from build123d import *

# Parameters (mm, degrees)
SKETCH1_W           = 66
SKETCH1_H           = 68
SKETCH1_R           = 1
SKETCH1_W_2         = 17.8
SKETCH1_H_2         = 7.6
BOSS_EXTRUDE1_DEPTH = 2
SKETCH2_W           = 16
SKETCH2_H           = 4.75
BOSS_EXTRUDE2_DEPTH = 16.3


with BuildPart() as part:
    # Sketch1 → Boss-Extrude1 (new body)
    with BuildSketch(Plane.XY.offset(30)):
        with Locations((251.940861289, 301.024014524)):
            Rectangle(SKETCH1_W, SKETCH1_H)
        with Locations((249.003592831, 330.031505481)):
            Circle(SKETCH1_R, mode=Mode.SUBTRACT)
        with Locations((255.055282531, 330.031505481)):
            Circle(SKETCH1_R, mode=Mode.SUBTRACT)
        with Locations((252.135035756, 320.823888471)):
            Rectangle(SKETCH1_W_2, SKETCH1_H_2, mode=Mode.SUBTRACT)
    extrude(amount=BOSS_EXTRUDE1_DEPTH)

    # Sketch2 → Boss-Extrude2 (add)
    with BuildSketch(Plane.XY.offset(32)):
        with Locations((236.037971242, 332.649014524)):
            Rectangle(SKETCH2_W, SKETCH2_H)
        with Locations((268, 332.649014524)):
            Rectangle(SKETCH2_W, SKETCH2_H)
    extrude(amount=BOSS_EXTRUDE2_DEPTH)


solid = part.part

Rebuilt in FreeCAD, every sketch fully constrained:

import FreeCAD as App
import Part
import Sketcher

V = App.Vector
Q = App.Units.Quantity


def add_polygon(sketch, points):
    """Adds a closed chain of lines whose ends are joined by coincident constraints."""
    first, n = sketch.GeometryCount, len(points)
    for a, b in zip(points, points[1:] + points[:1]):
        sketch.addGeometry(Part.LineSegment(App.Vector(*a, 0), App.Vector(*b, 0)), False)
    for i in range(n):
        sketch.addConstraint(Sketcher.Constraint("Coincident", first + i, 2, first + (i + 1) % n, 1))

doc = App.newDocument("Part")
body = doc.addObject("PartDesign::Body", "Body")

# Sketch on XY plane
sketch1 = doc.addObject("Sketcher::SketchObject", "Sketch")
body.addObject(sketch1)
sketch1.AttachmentSupport = (doc.XY_Plane, [""])
sketch1.MapMode = "FlatFace"
sketch1.AttachmentOffset = App.Placement(V(0, 0, 30), App.Rotation())
add_polygon(sketch1, [(218.9, 335), (218.9, 267), (284.9, 267), (284.9, 335)])  # lines 0-3
add_polygon(sketch1, [(261, 317), (243.2, 317), (243.2, 324.6), (261, 324.6)])  # lines 4-7
sketch1.addGeometry(Part.Circle(V(249, 330, 0), V(0, 0, 1), 1), False)  # 8
sketch1.addGeometry(Part.Circle(V(255.1, 330, 0), V(0, 0, 1), 1), False)  # 9
sketch1.addConstraint([
    Sketcher.Constraint("Vertical", 0),
    Sketcher.Constraint("Horizontal", 1),
    Sketcher.Constraint("Vertical", 2),
    Sketcher.Constraint("Horizontal", 3),
    Sketcher.Constraint("Horizontal", 4),
    Sketcher.Constraint("Vertical", 5),
    Sketcher.Constraint("Horizontal", 6),
    Sketcher.Constraint("Vertical", 7),
    Sketcher.Constraint("Equal", 8, 9),
    Sketcher.Constraint("Horizontal", 8, 3, 9, 3),
    Sketcher.Constraint("Diameter", 8, Q("2 mm")),
    Sketcher.Constraint("DistanceX", 1, 1, 1, 2, Q("66 mm")),
    Sketcher.Constraint("DistanceY", 0, 2, 0, 1, Q("68 mm")),
    Sketcher.Constraint("DistanceX", 4, 2, 4, 1, Q("17.8 mm")),
    Sketcher.Constraint("DistanceY", 5, 1, 5, 2, Q("7.6 mm")),
    Sketcher.Constraint("DistanceX", -1, 1, 0, 2, Q("218.940861 mm")),
    Sketcher.Constraint("DistanceY", -1, 1, 4, 2, Q("317.023888 mm")),
    Sketcher.Constraint("DistanceX", 8, 3, 9, 3, Q("6.05169 mm")),
    Sketcher.Constraint("DistanceX", 0, 2, 8, 3, Q("30.062732 mm")),
    Sketcher.Constraint("DistanceY", 0, 2, 8, 3, Q("63.007491 mm")),
    Sketcher.Constraint("DistanceY", -1, 1, 8, 3, Q("330.031505 mm")),
    Sketcher.Constraint("DistanceX", -1, 1, 4, 2, Q("243.235036 mm")),
])
pad1 = doc.addObject("PartDesign::Pad", "Pad")
body.addObject(pad1)
pad1.Profile = sketch1
pad1.Length = 2

# Sketch on XY plane
sketch2 = doc.addObject("Sketcher::SketchObject", "Sketch001")
body.addObject(sketch2)
sketch2.AttachmentSupport = (doc.XY_Plane, [""])
sketch2.MapMode = "FlatFace"
sketch2.AttachmentOffset = App.Placement(V(0, 0, 32), App.Rotation())
add_polygon(sketch2, [(228, 335), (228, 330.3), (244, 330.3), (244, 335)])  # lines 0-3
add_polygon(sketch2, [(260, 335), (260, 330.3), (276, 330.3), (276, 335)])  # lines 4-7
sketch2.addConstraint([
    Sketcher.Constraint("Vertical", 0),
    Sketcher.Constraint("Horizontal", 1),
    Sketcher.Constraint("Vertical", 2),
    Sketcher.Constraint("Horizontal", 3),
    Sketcher.Constraint("Vertical", 4),
    Sketcher.Constraint("Horizontal", 5),
    Sketcher.Constraint("Vertical", 6),
    Sketcher.Constraint("Horizontal", 7),
    Sketcher.Constraint("Horizontal", 1, 2, 4, 2),
    Sketcher.Constraint("Horizontal", 3, 2, 6, 2),
    Sketcher.Constraint("Equal", 3, 5),
    Sketcher.Constraint("DistanceX", 1, 1, 1, 2, Q("16 mm")),
    Sketcher.Constraint("DistanceX", -1, 1, 4, 2, Q("260 mm")),
    Sketcher.Constraint("DistanceY", 0, 2, 0, 1, Q("4.75 mm")),
    Sketcher.Constraint("DistanceX", -1, 1, 0, 2, Q("228.037971 mm")),
    Sketcher.Constraint("DistanceY", -1, 1, 0, 2, Q("330.274015 mm")),
])
pad2 = doc.addObject("PartDesign::Pad", "Pad001")
body.addObject(pad2)
pad2.Profile = sketch2
pad2.Length = 16.3

doc.recompute()
